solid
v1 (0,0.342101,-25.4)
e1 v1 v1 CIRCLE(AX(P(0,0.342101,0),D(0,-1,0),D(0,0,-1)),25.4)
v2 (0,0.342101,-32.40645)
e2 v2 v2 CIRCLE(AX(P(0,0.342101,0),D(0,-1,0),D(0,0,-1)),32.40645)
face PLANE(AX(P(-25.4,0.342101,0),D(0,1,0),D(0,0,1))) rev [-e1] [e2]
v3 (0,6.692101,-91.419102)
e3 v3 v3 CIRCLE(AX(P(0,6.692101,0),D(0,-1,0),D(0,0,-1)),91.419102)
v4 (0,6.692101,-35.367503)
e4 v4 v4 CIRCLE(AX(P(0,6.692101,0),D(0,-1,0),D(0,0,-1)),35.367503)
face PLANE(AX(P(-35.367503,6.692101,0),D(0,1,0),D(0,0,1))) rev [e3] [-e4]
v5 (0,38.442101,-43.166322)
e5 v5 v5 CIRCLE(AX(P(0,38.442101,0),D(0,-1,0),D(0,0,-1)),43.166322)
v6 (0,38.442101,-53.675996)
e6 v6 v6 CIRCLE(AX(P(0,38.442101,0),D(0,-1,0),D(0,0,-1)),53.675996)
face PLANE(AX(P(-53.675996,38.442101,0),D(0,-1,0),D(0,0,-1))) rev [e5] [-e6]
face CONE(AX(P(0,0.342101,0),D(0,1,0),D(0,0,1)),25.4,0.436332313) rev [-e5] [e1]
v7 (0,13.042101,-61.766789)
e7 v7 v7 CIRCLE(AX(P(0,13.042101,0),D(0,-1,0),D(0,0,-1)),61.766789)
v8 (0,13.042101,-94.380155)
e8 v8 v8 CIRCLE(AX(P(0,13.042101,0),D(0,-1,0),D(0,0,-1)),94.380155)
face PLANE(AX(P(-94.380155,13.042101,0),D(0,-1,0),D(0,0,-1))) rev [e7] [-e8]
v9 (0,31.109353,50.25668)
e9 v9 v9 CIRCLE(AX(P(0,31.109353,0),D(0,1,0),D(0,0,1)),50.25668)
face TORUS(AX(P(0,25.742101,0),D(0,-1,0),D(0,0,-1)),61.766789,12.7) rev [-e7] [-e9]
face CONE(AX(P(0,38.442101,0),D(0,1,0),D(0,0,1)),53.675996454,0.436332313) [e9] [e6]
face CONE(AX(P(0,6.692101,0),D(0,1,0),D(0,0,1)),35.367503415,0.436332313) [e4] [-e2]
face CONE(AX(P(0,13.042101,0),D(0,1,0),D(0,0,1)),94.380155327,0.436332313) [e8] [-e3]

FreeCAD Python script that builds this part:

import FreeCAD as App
import Part
import Sketcher
Q = App.Units.Quantity


def edges_at(feature, points):
    """Names of the edges that pass closest to the given points."""
    edges = feature.Shape.Edges
    near = lambda p: min(range(len(edges)), key=lambda i: edges[i].distToShape(Part.Vertex(*p))[0])
    return sorted({f"Edge{near(p) + 1}" for p in points})

doc = App.newDocument("Part")
body = doc.addObject("PartDesign::Body", "Body")

# Sketch on XY plane
sketch1 = body.newObject("Sketcher::SketchObject", "Sketch")
sketch1.AttachmentSupport = (doc.getObject("XY_Plane"), [""])
sketch1.MapMode = "FlatFace"
sketch1.addGeometry([
    Part.LineSegment(App.Vector(-32, 0, 0), App.Vector(-25, 0, 0)),  # 0
    Part.LineSegment(App.Vector(-25, 0, 0), App.Vector(-43, 38, 0)),  # 1
    Part.LineSegment(App.Vector(-43, 38, 0), App.Vector(-54, 38, 0)),  # 2
    Part.LineSegment(App.Vector(-54, 38, 0), App.Vector(-42, 13, 0)),  # 3
    Part.LineSegment(App.Vector(-42, 13, 0), App.Vector(-94, 13, 0)),  # 4
    Part.LineSegment(App.Vector(-94, 13, 0), App.Vector(-91, 7, 0)),  # 5
    Part.LineSegment(App.Vector(-91, 7, 0), App.Vector(-35, 7, 0)),  # 6
    Part.LineSegment(App.Vector(-35, 7, 0), App.Vector(-32, 0, 0)),  # 7
], False)
sketch1.addConstraint([
    Sketcher.Constraint("Coincident", 0, 2, 1, 1),
    Sketcher.Constraint("Coincident", 1, 2, 2, 1),
    Sketcher.Constraint("Coincident", 2, 2, 3, 1),
    Sketcher.Constraint("Coincident", 3, 2, 4, 1),
    Sketcher.Constraint("Coincident", 4, 2, 5, 1),
    Sketcher.Constraint("Coincident", 5, 2, 6, 1),
    Sketcher.Constraint("Coincident", 6, 2, 7, 1),
    Sketcher.Constraint("Coincident", 7, 2, 0, 1),
    Sketcher.Constraint("Horizontal", 0),
    Sketcher.Constraint("Horizontal", 2),
    Sketcher.Constraint("Horizontal", 4),
    Sketcher.Constraint("Horizontal", 6),
    Sketcher.Constraint("Parallel", 1, 3),
    Sketcher.Constraint("Parallel", 3, 5),
    Sketcher.Constraint("Parallel", 5, 7),
    Sketcher.Constraint("Equal", 5, 7),
    Sketcher.Constraint("DistanceX", 0, 2, -1, 1, Q("1 in")),
    Sketcher.Constraint("Angle", 1, Q("115 deg")),
    Sketcher.Constraint("DistanceY", 3, 2, 1, 2, Q("1 in")),
    Sketcher.Constraint("DistanceY", 0, 2, 1, 2, Q("1.5 in")),
    Sketcher.Constraint("DistanceX", 6, 1, 6, 2, Q("56.051598 mm")),
    Sketcher.Constraint("DistanceX", 0, 1, 0, 2, Q("7.00645 mm")),
    Sketcher.Constraint("DistanceY", -1, 1, 0, 2, Q("0.342101 mm")),
    Sketcher.Constraint("DistanceX", 2, 2, 2, 1, Q("10.509675 mm")),
])
revolution = body.newObject("PartDesign::Revolution", "Revolution")
revolution.Profile = sketch1
revolution.ReferenceAxis = (sketch1, ["V_Axis"])
revolution.Angle = 360
doc.recompute()

fillet = body.newObject("PartDesign::Fillet", "Fillet")
fillet.Base = (revolution, edges_at(revolution, [(0, 13.042, 41.832)]))
fillet.Radius = Q("0.5 in")

doc.recompute()
